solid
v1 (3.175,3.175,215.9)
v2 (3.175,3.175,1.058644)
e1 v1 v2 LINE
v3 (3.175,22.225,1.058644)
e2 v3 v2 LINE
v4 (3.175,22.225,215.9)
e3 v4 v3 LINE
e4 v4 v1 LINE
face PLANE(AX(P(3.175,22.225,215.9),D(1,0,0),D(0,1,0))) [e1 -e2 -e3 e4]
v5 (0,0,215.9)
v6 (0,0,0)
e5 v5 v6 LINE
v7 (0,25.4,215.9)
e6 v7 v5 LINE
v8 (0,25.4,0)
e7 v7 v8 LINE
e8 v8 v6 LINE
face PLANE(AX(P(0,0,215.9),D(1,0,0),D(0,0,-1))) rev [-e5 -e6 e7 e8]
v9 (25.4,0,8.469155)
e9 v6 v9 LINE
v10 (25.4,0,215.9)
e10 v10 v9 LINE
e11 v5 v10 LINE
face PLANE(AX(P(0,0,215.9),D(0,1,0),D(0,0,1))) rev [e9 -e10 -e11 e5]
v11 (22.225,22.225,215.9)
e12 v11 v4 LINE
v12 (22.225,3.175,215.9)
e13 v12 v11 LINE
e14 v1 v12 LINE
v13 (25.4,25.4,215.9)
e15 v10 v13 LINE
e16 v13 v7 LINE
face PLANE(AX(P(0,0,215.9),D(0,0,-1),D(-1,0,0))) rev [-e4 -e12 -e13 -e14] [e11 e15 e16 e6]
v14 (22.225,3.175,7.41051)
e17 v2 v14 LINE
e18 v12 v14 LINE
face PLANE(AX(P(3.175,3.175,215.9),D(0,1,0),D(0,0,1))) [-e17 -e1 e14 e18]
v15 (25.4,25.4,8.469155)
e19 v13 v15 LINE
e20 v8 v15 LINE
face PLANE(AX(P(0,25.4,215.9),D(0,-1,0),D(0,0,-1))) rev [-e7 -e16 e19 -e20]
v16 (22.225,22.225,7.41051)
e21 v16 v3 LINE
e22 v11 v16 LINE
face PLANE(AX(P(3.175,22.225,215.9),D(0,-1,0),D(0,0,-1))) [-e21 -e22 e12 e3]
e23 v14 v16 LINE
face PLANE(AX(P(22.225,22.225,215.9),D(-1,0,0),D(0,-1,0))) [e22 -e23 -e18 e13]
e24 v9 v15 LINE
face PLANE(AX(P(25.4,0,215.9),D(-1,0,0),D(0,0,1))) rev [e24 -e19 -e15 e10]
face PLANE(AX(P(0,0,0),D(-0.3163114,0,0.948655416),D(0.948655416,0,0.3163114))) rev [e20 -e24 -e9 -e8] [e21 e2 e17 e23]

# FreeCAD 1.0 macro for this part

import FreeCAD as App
import Part
import Sketcher
from FreeCAD import Vector
Q = App.Units.Quantity

doc = App.newDocument("Part")
params = doc.addObject("Spreadsheet::Sheet", "Params")
for row, (alias, value) in enumerate([
    ("sketch1_width", "1 in"),
    ("sketch1_width2", "0.75 in"),
    ("pad1_length", "8.5 in"),
    ("sketch2_width", "1 in"),
], start=1):
    params.set(f"A{row}", alias)
    params.set(f"B{row}", "=" + value)
    params.setAlias(f"B{row}", alias)

body = doc.addObject("PartDesign::Body", "Body")

# Sketch on XY plane
sketch1 = body.newObject("Sketcher::SketchObject", "Sketch")
sketch1.AttachmentSupport = (doc.getObject("XY_Plane"), [""])
sketch1.MapMode = "FlatFace"
sketch1.addGeometry(Part.LineSegment(Vector(0, 25.4, 0), Vector(0, 0, 0)), False)
sketch1.addGeometry(Part.LineSegment(Vector(0, 0, 0), Vector(25.4, 0, 0)), False)
sketch1.addGeometry(Part.LineSegment(Vector(25.4, 0, 0), Vector(25.4, 25.4, 0)), False)
sketch1.addGeometry(Part.LineSegment(Vector(25.4, 25.4, 0), Vector(0, 25.4, 0)), False)
sketch1.addGeometry(Part.LineSegment(Vector(22.225, 3.175, 0), Vector(3.175, 3.175, 0)), False)
sketch1.addGeometry(Part.LineSegment(Vector(3.175, 3.175, 0), Vector(3.175, 22.225, 0)), False)
sketch1.addGeometry(Part.LineSegment(Vector(3.175, 22.225, 0), Vector(22.225, 22.225, 0)), False)
sketch1.addGeometry(Part.LineSegment(Vector(22.225, 22.225, 0), Vector(22.225, 3.175, 0)), False)
sketch1.addConstraint(Sketcher.Constraint("Coincident", 0, 2, 1, 1))
sketch1.addConstraint(Sketcher.Constraint("Coincident", 1, 2, 2, 1))
sketch1.addConstraint(Sketcher.Constraint("Coincident", 2, 2, 3, 1))
sketch1.addConstraint(Sketcher.Constraint("Coincident", 3, 2, 0, 1))
sketch1.addConstraint(Sketcher.Constraint("Coincident", 4, 2, 5, 1))
sketch1.addConstraint(Sketcher.Constraint("Coincident", 5, 2, 6, 1))
sketch1.addConstraint(Sketcher.Constraint("Coincident", 6, 2, 7, 1))
sketch1.addConstraint(Sketcher.Constraint("Coincident", 7, 2, 4, 1))
sketch1.addConstraint(Sketcher.Constraint("Vertical", 0))
sketch1.addConstraint(Sketcher.Constraint("Horizontal", 1))
sketch1.addConstraint(Sketcher.Constraint("Vertical", 2))
sketch1.addConstraint(Sketcher.Constraint("Horizontal", 3))
sketch1.addConstraint(Sketcher.Constraint("Horizontal", 4))
sketch1.addConstraint(Sketcher.Constraint("Vertical", 5))
sketch1.addConstraint(Sketcher.Constraint("Horizontal", 6))
sketch1.addConstraint(Sketcher.Constraint("Vertical", 7))
sketch1.addConstraint(Sketcher.Constraint("Coincident", 0, 2, -1, 1))
sketch1.addConstraint(Sketcher.Constraint("Equal", 3, 0))
sketch1.addConstraint(Sketcher.Constraint("Equal", 6, 5))
sketch1.addConstraint(Sketcher.Constraint("DistanceX", 1, 1, 1, 2, Q("1 in")))
sketch1.addConstraint(Sketcher.Constraint("DistanceX", 4, 2, 4, 1, Q("0.75 in")))
sketch1.addConstraint(Sketcher.Constraint("DistanceX", -1, 1, 4, 2, Q("0.125 in")))
sketch1.addConstraint(Sketcher.Constraint("DistanceY", -1, 1, 4, 2, Q("0.125 in")))
sketch1.setExpression("Constraints[19]", "Params.sketch1_width")
sketch1.setExpression("Constraints[20]", "Params.sketch1_width2")
pad1 = body.newObject("PartDesign::Pad", "Pad")
pad1.Profile = sketch1
pad1.setExpression("Length", "Params.pad1_length")

# Sketch on XZ plane
sketch2 = body.newObject("Sketcher::SketchObject", "Sketch001")
sketch2.AttachmentSupport = (doc.getObject("XZ_Plane"), [""])
sketch2.MapMode = "FlatFace"
sketch2.AttachmentOffset = App.Placement(Vector(0, 0, -1 * 25.4), App.Rotation())
sketch2.addGeometry(Part.LineSegment(Vector(0, 0, 0), Vector(25.4, 8.469155, 0)), False)
sketch2.addGeometry(Part.LineSegment(Vector(25.4, 8.469155, 0), Vector(25.4, 0, 0)), False)
sketch2.addGeometry(Part.LineSegment(Vector(25.4, 0, 0), Vector(0, 0, 0)), False)
sketch2.addConstraint(Sketcher.Constraint("Coincident", 0, 2, 1, 1))
sketch2.addConstraint(Sketcher.Constraint("Coincident", 1, 2, 2, 1))
sketch2.addConstraint(Sketcher.Constraint("Coincident", 2, 2, 0, 1))
sketch2.addConstraint(Sketcher.Constraint("Vertical", 1))
sketch2.addConstraint(Sketcher.Constraint("Horizontal", 2))
sketch2.addConstraint(Sketcher.Constraint("Coincident", 2, 2, -1, 1))
sketch2.addConstraint(Sketcher.Constraint("DistanceX", 2, 2, 2, 1, Q("1 in")))
sketch2.addConstraint(Sketcher.Constraint("Angle", 0, Q("18.44 deg")))
sketch2.setExpression("Constraints[6]", "Params.sketch2_width")
pocket1 = body.newObject("PartDesign::Pocket", "Pocket")
pocket1.Profile = sketch2
pocket1.Type = "ThroughAll"
pocket1.Reversed = True

doc.recompute()
